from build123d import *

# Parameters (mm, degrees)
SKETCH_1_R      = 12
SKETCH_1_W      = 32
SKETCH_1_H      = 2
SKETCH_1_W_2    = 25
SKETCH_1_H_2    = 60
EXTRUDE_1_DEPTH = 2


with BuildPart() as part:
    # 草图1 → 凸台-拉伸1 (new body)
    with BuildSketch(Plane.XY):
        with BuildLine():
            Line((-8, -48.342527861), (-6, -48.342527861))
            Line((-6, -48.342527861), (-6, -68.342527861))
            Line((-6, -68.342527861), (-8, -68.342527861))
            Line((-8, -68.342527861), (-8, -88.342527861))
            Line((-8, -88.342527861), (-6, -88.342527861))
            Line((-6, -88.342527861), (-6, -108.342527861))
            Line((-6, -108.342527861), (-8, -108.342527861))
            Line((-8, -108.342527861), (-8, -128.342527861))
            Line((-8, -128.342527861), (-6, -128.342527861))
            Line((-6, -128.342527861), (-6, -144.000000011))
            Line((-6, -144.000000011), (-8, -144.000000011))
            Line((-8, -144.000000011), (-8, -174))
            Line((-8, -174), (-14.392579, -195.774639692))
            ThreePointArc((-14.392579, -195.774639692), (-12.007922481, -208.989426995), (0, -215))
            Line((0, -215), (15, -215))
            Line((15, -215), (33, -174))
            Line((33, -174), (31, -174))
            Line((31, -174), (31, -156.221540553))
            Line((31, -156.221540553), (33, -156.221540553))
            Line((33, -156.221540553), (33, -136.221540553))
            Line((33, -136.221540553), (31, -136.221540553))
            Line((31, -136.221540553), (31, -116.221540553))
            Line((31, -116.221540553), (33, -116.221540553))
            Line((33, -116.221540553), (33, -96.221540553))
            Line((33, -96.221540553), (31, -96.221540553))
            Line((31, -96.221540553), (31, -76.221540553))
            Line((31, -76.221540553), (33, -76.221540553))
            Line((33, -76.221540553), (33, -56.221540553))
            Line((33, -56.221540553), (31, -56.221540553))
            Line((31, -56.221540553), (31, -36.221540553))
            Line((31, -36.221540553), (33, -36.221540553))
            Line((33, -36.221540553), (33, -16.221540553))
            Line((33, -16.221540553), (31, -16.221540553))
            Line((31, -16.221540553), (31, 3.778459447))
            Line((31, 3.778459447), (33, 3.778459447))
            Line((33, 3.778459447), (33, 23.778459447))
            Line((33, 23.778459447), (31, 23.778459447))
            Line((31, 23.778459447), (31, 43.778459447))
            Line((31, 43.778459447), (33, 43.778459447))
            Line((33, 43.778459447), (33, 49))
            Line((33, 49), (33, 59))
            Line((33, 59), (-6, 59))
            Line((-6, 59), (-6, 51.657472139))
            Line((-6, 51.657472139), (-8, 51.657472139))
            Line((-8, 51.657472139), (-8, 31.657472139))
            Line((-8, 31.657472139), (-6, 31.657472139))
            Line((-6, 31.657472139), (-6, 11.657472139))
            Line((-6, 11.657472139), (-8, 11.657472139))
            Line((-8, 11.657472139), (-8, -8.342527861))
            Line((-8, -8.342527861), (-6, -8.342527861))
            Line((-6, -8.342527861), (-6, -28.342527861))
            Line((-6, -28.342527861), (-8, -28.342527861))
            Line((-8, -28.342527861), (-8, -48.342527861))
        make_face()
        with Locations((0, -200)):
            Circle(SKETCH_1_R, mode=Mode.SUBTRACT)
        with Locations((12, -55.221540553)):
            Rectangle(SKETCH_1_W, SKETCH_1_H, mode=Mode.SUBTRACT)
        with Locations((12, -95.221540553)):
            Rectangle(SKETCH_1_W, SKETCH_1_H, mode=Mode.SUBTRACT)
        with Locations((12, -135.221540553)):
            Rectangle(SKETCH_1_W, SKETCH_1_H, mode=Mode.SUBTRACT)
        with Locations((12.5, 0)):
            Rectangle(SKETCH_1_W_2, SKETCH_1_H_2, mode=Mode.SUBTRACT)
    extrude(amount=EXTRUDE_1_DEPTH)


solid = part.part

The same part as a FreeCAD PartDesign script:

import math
import FreeCAD as App
import Part
import Sketcher


def add_polygon(sketch, points):
    """Adds a closed chain of lines whose ends are joined by coincident constraints."""
    first, n = sketch.GeometryCount, len(points)
    for a, b in zip(points, points[1:] + points[:1]):
        sketch.addGeometry(Part.LineSegment(App.Vector(*a, 0), App.Vector(*b, 0)), False)
    for i in range(n):
        sketch.addConstraint(Sketcher.Constraint("Coincident", first + i, 2, first + (i + 1) % n, 1))

doc = App.newDocument("Part")
body = doc.addObject("PartDesign::Body", "Body")

sketch1 = body.newObject("Sketcher::SketchObject", "Sketch")
sketch1.AttachmentSupport = (doc.getObject("XY_Plane"), [""])
sketch1.MapMode = "FlatFace"
sketch1.addGeometry(Part.LineSegment(App.Vector(-8, -48.3, 0), App.Vector(-6, -48.3, 0)), False)
sketch1.addGeometry(Part.LineSegment(App.Vector(-6, -48.3, 0), App.Vector(-6, -68.3, 0)), False)
sketch1.addGeometry(Part.LineSegment(App.Vector(-6, -68.3, 0), App.Vector(-8, -68.3, 0)), False)
sketch1.addGeometry(Part.LineSegment(App.Vector(-8, -68.3, 0), App.Vector(-8, -88.3, 0)), False)
sketch1.addGeometry(Part.LineSegment(App.Vector(-8, -88.3, 0), App.Vector(-6, -88.3, 0)), False)
sketch1.addGeometry(Part.LineSegment(App.Vector(-6, -88.3, 0), App.Vector(-6, -108.3, 0)), False)
sketch1.addGeometry(Part.LineSegment(App.Vector(-6, -108.3, 0), App.Vector(-8, -108.3, 0)), False)
sketch1.addGeometry(Part.LineSegment(App.Vector(-8, -108.3, 0), App.Vector(-8, -128.3, 0)), False)
sketch1.addGeometry(Part.LineSegment(App.Vector(-8, -128.3, 0), App.Vector(-6, -128.3, 0)), False)
sketch1.addGeometry(Part.LineSegment(App.Vector(-6, -128.3, 0), App.Vector(-6, -144, 0)), False)
sketch1.addGeometry(Part.LineSegment(App.Vector(-6, -144, 0), App.Vector(-8, -144, 0)), False)
sketch1.addGeometry(Part.LineSegment(App.Vector(-8, -144, 0), App.Vector(-8, -174, 0)), False)
sketch1.addGeometry(Part.LineSegment(App.Vector(-8, -174, 0), App.Vector(-14.4, -195.8, 0)), False)
sketch1.addGeometry(Part.ArcOfCircle(Part.Circle(App.Vector(0, -200, 0), App.Vector(0, 0, 1), 15), math.radians(164), math.radians(270)), False)
sketch1.addGeometry(Part.LineSegment(App.Vector(0, -215, 0), App.Vector(15, -215, 0)), False)
sketch1.addGeometry(Part.LineSegment(App.Vector(15, -215, 0), App.Vector(33, -174, 0)), False)
sketch1.addGeometry(Part.LineSegment(App.Vector(33, -174, 0), App.Vector(31, -174, 0)), False)
sketch1.addGeometry(Part.LineSegment(App.Vector(31, -174, 0), App.Vector(31, -156.2, 0)), False)
sketch1.addGeometry(Part.LineSegment(App.Vector(31, -156.2, 0), App.Vector(33, -156.2, 0)), False)
sketch1.addGeometry(Part.LineSegment(App.Vector(33, -156.2, 0), App.Vector(33, -136.2, 0)), False)
sketch1.addGeometry(Part.LineSegment(App.Vector(33, -136.2, 0), App.Vector(31, -136.2, 0)), False)
sketch1.addGeometry(Part.LineSegment(App.Vector(31, -136.2, 0), App.Vector(31, -116.2, 0)), False)
sketch1.addGeometry(Part.LineSegment(App.Vector(31, -116.2, 0), App.Vector(33, -116.2, 0)), False)
sketch1.addGeometry(Part.LineSegment(App.Vector(33, -116.2, 0), App.Vector(33, -96.2, 0)), False)
sketch1.addGeometry(Part.LineSegment(App.Vector(33, -96.2, 0), App.Vector(31, -96.2, 0)), False)
sketch1.addGeometry(Part.LineSegment(App.Vector(31, -96.2, 0), App.Vector(31, -76.2, 0)), False)
sketch1.addGeometry(Part.LineSegment(App.Vector(31, -76.2, 0), App.Vector(33, -76.2, 0)), False)
sketch1.addGeometry(Part.LineSegment(App.Vector(33, -76.2, 0), App.Vector(33, -56.2, 0)), False)
sketch1.addGeometry(Part.LineSegment(App.Vector(33, -56.2, 0), App.Vector(31, -56.2, 0)), False)
sketch1.addGeometry(Part.LineSegment(App.Vector(31, -56.2, 0), App.Vector(31, -36.2, 0)), False)
sketch1.addGeometry(Part.LineSegment(App.Vector(31, -36.2, 0), App.Vector(33, -36.2, 0)), False)
sketch1.addGeometry(Part.LineSegment(App.Vector(33, -36.2, 0), App.Vector(33, -16.2, 0)), False)
sketch1.addGeometry(Part.LineSegment(App.Vector(33, -16.2, 0), App.Vector(31, -16.2, 0)), False)
sketch1.addGeometry(Part.LineSegment(App.Vector(31, -16.2, 0), App.Vector(31, 3.8, 0)), False)
sketch1.addGeometry(Part.LineSegment(App.Vector(31, 3.8, 0), App.Vector(33, 3.8, 0)), False)
sketch1.addGeometry(Part.LineSegment(App.Vector(33, 3.8, 0), App.Vector(33, 23.8, 0)), False)
sketch1.addGeometry(Part.LineSegment(App.Vector(33, 23.8, 0), App.Vector(31, 23.8, 0)), False)
sketch1.addGeometry(Part.LineSegment(App.Vector(31, 23.8, 0), App.Vector(31, 43.8, 0)), False)
sketch1.addGeometry(Part.LineSegment(App.Vector(31, 43.8, 0), App.Vector(33, 43.8, 0)), False)
sketch1.addGeometry(Part.LineSegment(App.Vector(33, 43.8, 0), App.Vector(33, 59, 0)), False)
sketch1.addGeometry(Part.LineSegment(App.Vector(33, 59, 0), App.Vector(-6, 59, 0)), False)
sketch1.addGeometry(Part.LineSegment(App.Vector(-6, 59, 0), App.Vector(-6, 51.7, 0)), False)
sketch1.addGeometry(Part.LineSegment(App.Vector(-6, 51.7, 0), App.Vector(-8, 51.7, 0)), False)
sketch1.addGeometry(Part.LineSegment(App.Vector(-8, 51.7, 0), App.Vector(-8, 31.7, 0)), False)
sketch1.addGeometry(Part.LineSegment(App.Vector(-8, 31.7, 0), App.Vector(-6, 31.7, 0)), False)
sketch1.addGeometry(Part.LineSegment(App.Vector(-6, 31.7, 0), App.Vector(-6, 11.7, 0)), False)
sketch1.addGeometry(Part.LineSegment(App.Vector(-6, 11.7, 0), App.Vector(-8, 11.7, 0)), False)
sketch1.addGeometry(Part.LineSegment(App.Vector(-8, 11.7, 0), App.Vector(-8, -8.3, 0)), False)
sketch1.addGeometry(Part.LineSegment(App.Vector(-8, -8.3, 0), App.Vector(-6, -8.3, 0)), False)
sketch1.addGeometry(Part.LineSegment(App.Vector(-6, -8.3, 0), App.Vector(-6, -28.3, 0)), False)
sketch1.addGeometry(Part.LineSegment(App.Vector(-6, -28.3, 0), App.Vector(-8, -28.3, 0)), False)
sketch1.addGeometry(Part.LineSegment(App.Vector(-8, -28.3, 0), App.Vector(-8, -48.3, 0)), False)
sketch1.addGeometry(Part.Circle(App.Vector(0, -200, 0), App.Vector(0, 0, 1), 12), False)
add_polygon(sketch1, [(28, -136.2), (-4, -136.2), (-4, -134.2), (28, -134.2)])
add_polygon(sketch1, [(28, -96.2), (-4, -96.2), (-4, -94.2), (28, -94.2)])
add_polygon(sketch1, [(28, -56.2), (-4, -56.2), (-4, -54.2), (28, -54.2)])
add_polygon(sketch1, [(25, -30), (0, -30), (0, 30), (25, 30)])
sketch1.addConstraint(Sketcher.Constraint("Coincident", 0, 2, 1, 1))
sketch1.addConstraint(Sketcher.Constraint("Coincident", 1, 2, 2, 1))
sketch1.addConstraint(Sketcher.Constraint("Coincident", 2, 2, 3, 1))
sketch1.addConstraint(Sketcher.Constraint("Coincident", 3, 2, 4, 1))
sketch1.addConstraint(Sketcher.Constraint("Coincident", 4, 2, 5, 1))
sketch1.addConstraint(Sketcher.Constraint("Coincident", 5, 2, 6, 1))
sketch1.addConstraint(Sketcher.Constraint("Coincident", 6, 2, 7, 1))
sketch1.addConstraint(Sketcher.Constraint("Coincident", 7, 2, 8, 1))
sketch1.addConstraint(Sketcher.Constraint("Coincident", 8, 2, 9, 1))
sketch1.addConstraint(Sketcher.Constraint("Coincident", 9, 2, 10, 1))
sketch1.addConstraint(Sketcher.Constraint("Coincident", 10, 2, 11, 1))
sketch1.addConstraint(Sketcher.Constraint("Coincident", 11, 2, 12, 1))
sketch1.addConstraint(Sketcher.Constraint("Tangent", 12, 2, 13, 1))
sketch1.addConstraint(Sketcher.Constraint("Tangent", 13, 2, 14, 1))
sketch1.addConstraint(Sketcher.Constraint("Coincident", 14, 2, 15, 1))
sketch1.addConstraint(Sketcher.Constraint("Coincident", 15, 2, 16, 1))
sketch1.addConstraint(Sketcher.Constraint("Coincident", 16, 2, 17, 1))
sketch1.addConstraint(Sketcher.Constraint("Coincident", 17, 2, 18, 1))
sketch1.addConstraint(Sketcher.Constraint("Coincident", 18, 2, 19, 1))
sketch1.addConstraint(Sketcher.Constraint("Coincident", 19, 2, 20, 1))
sketch1.addConstraint(Sketcher.Constraint("Coincident", 20, 2, 21, 1))
sketch1.addConstraint(Sketcher.Constraint("Coincident", 21, 2, 22, 1))
sketch1.addConstraint(Sketcher.Constraint("Coincident", 22, 2, 23, 1))
sketch1.addConstraint(Sketcher.Constraint("Coincident", 23, 2, 24, 1))
sketch1.addConstraint(Sketcher.Constraint("Coincident", 24, 2, 25, 1))
sketch1.addConstraint(Sketcher.Constraint("Coincident", 25, 2, 26, 1))
sketch1.addConstraint(Sketcher.Constraint("Coincident", 26, 2, 27, 1))
sketch1.addConstraint(Sketcher.Constraint("Coincident", 27, 2, 28, 1))
sketch1.addConstraint(Sketcher.Constraint("Coincident", 28, 2, 29, 1))
sketch1.addConstraint(Sketcher.Constraint("Coincident", 29, 2, 30, 1))
sketch1.addConstraint(Sketcher.Constraint("Coincident", 30, 2, 31, 1))
sketch1.addConstraint(Sketcher.Constraint("Coincident", 31, 2, 32, 1))
sketch1.addConstraint(Sketcher.Constraint("Coincident", 32, 2, 33, 1))
sketch1.addConstraint(Sketcher.Constraint("Coincident", 33, 2, 34, 1))
sketch1.addConstraint(Sketcher.Constraint("Coincident", 34, 2, 35, 1))
sketch1.addConstraint(Sketcher.Constraint("Coincident", 35, 2, 36, 1))
sketch1.addConstraint(Sketcher.Constraint("Coincident", 36, 2, 37, 1))
sketch1.addConstraint(Sketcher.Constraint("Coincident", 37, 2, 38, 1))
sketch1.addConstraint(Sketcher.Constraint("Coincident", 38, 2, 39, 1))
sketch1.addConstraint(Sketcher.Constraint("Coincident", 39, 2, 40, 1))
sketch1.addConstraint(Sketcher.Constraint("Coincident", 40, 2, 41, 1))
sketch1.addConstraint(Sketcher.Constraint("Coincident", 41, 2, 42, 1))
sketch1.addConstraint(Sketcher.Constraint("Coincident", 42, 2, 43, 1))
sketch1.addConstraint(Sketcher.Constraint("Coincident", 43, 2, 44, 1))
sketch1.addConstraint(Sketcher.Constraint("Coincident", 44, 2, 45, 1))
sketch1.addConstraint(Sketcher.Constraint("Coincident", 45, 2, 46, 1))
sketch1.addConstraint(Sketcher.Constraint("Coincident", 46, 2, 47, 1))
sketch1.addConstraint(Sketcher.Constraint("Coincident", 47, 2, 48, 1))
sketch1.addConstraint(Sketcher.Constraint("Coincident", 48, 2, 49, 1))
sketch1.addConstraint(Sketcher.Constraint("Coincident", 49, 2, 50, 1))
sketch1.addConstraint(Sketcher.Constraint("Coincident", 50, 2, 51, 1))
sketch1.addConstraint(Sketcher.Constraint("Coincident", 51, 2, 0, 1))
sketch1.addConstraint(Sketcher.Constraint("Horizontal", 0))
sketch1.addConstraint(Sketcher.Constraint("Vertical", 1))
sketch1.addConstraint(Sketcher.Constraint("Horizontal", 2))
sketch1.addConstraint(Sketcher.Constraint("Vertical", 3))
sketch1.addConstraint(Sketcher.Constraint("Horizontal", 4))
sketch1.addConstraint(Sketcher.Constraint("Vertical", 5))
sketch1.addConstraint(Sketcher.Constraint("Horizontal", 6))
sketch1.addConstraint(Sketcher.Constraint("Vertical", 7))
sketch1.addConstraint(Sketcher.Constraint("Horizontal", 8))
sketch1.addConstraint(Sketcher.Constraint("Vertical", 9))
sketch1.addConstraint(Sketcher.Constraint("Horizontal", 10))
sketch1.addConstraint(Sketcher.Constraint("Vertical", 11))
sketch1.addConstraint(Sketcher.Constraint("Horizontal", 14))
sketch1.addConstraint(Sketcher.Constraint("Horizontal", 16))
sketch1.addConstraint(Sketcher.Constraint("Vertical", 17))
sketch1.addConstraint(Sketcher.Constraint("Horizontal", 18))
sketch1.addConstraint(Sketcher.Constraint("Vertical", 19))
sketch1.addConstraint(Sketcher.Constraint("Horizontal", 20))
sketch1.addConstraint(Sketcher.Constraint("Vertical", 21))
sketch1.addConstraint(Sketcher.Constraint("Horizontal", 22))
sketch1.addConstraint(Sketcher.Constraint("Vertical", 23))
sketch1.addConstraint(Sketcher.Constraint("Horizontal", 24))
sketch1.addConstraint(Sketcher.Constraint("Vertical", 25))
sketch1.addConstraint(Sketcher.Constraint("Horizontal", 26))
sketch1.addConstraint(Sketcher.Constraint("Vertical", 27))
sketch1.addConstraint(Sketcher.Constraint("Horizontal", 28))
sketch1.addConstraint(Sketcher.Constraint("Vertical", 29))
sketch1.addConstraint(Sketcher.Constraint("Horizontal", 30))
sketch1.addConstraint(Sketcher.Constraint("Vertical", 31))
sketch1.addConstraint(Sketcher.Constraint("Horizontal", 32))
sketch1.addConstraint(Sketcher.Constraint("Vertical", 33))
sketch1.addConstraint(Sketcher.Constraint("Horizontal", 34))
sketch1.addConstraint(Sketcher.Constraint("Vertical", 35))
sketch1.addConstraint(Sketcher.Constraint("Horizontal", 36))
sketch1.addConstraint(Sketcher.Constraint("Vertical", 37))
sketch1.addConstraint(Sketcher.Constraint("Horizontal", 38))
sketch1.addConstraint(Sketcher.Constraint("Vertical", 39))
sketch1.addConstraint(Sketcher.Constraint("Horizontal", 40))
sketch1.addConstraint(Sketcher.Constraint("Vertical", 41))
sketch1.addConstraint(Sketcher.Constraint("Horizontal", 42))
sketch1.addConstraint(Sketcher.Constraint("Vertical", 43))
sketch1.addConstraint(Sketcher.Constraint("Horizontal", 44))
sketch1.addConstraint(Sketcher.Constraint("Vertical", 45))
sketch1.addConstraint(Sketcher.Constraint("Horizontal", 46))
sketch1.addConstraint(Sketcher.Constraint("Vertical", 47))
sketch1.addConstraint(Sketcher.Constraint("Horizontal", 48))
sketch1.addConstraint(Sketcher.Constraint("Vertical", 49))
sketch1.addConstraint(Sketcher.Constraint("Horizontal", 50))
sketch1.addConstraint(Sketcher.Constraint("Vertical", 51))
sketch1.addConstraint(Sketcher.Constraint("Horizontal", 53))
sketch1.addConstraint(Sketcher.Constraint("Vertical", 54))
sketch1.addConstraint(Sketcher.Constraint("Horizontal", 55))
sketch1.addConstraint(Sketcher.Constraint("Vertical", 56))
sketch1.addConstraint(Sketcher.Constraint("Horizontal", 57))
sketch1.addConstraint(Sketcher.Constraint("Vertical", 58))
sketch1.addConstraint(Sketcher.Constraint("Horizontal", 59))
sketch1.addConstraint(Sketcher.Constraint("Vertical", 60))
sketch1.addConstraint(Sketcher.Constraint("Horizontal", 61))
sketch1.addConstraint(Sketcher.Constraint("Vertical", 62))
sketch1.addConstraint(Sketcher.Constraint("Horizontal", 63))
sketch1.addConstraint(Sketcher.Constraint("Vertical", 64))
sketch1.addConstraint(Sketcher.Constraint("Horizontal", 65))
sketch1.addConstraint(Sketcher.Constraint("Vertical", 66))
sketch1.addConstraint(Sketcher.Constraint("Horizontal", 67))
sketch1.addConstraint(Sketcher.Constraint("Vertical", 68))
sketch1.addConstraint(Sketcher.Constraint("Coincident", 52, 3, 13, 3))
sketch1.addConstraint(Sketcher.Constraint("Symmetric", 65, 2, 66, 2, -1, 1))
sketch1.addConstraint(Sketcher.Constraint("PointOnObject", 13, 3, -2))
sketch1.addConstraint(Sketcher.Constraint("Horizontal", 11, 2, 15, 2))
sketch1.addConstraint(Sketcher.Constraint("Horizontal", 20, 2, 53, 2))
sketch1.addConstraint(Sketcher.Constraint("Horizontal", 24, 2, 57, 2))
sketch1.addConstraint(Sketcher.Constraint("Horizontal", 28, 2, 61, 2))
sketch1.addConstraint(Sketcher.Constraint("Vertical", 1, 2, 4, 2))
sketch1.addConstraint(Sketcher.Constraint("Vertical", 3, 2, 6, 2))
sketch1.addConstraint(Sketcher.Constraint("Vertical", 5, 2, 8, 2))
sketch1.addConstraint(Sketcher.Constraint("Vertical", 7, 2, 10, 2))
sketch1.addConstraint(Sketcher.Constraint("Vertical", 15, 2, 18, 2))
sketch1.addConstraint(Sketcher.Constraint("Vertical", 17, 2, 20, 2))
sketch1.addConstraint(Sketcher.Constraint("Vertical", 19, 2, 22, 2))
sketch1.addConstraint(Sketcher.Constraint("Vertical", 21, 2, 24, 2))
sketch1.addConstraint(Sketcher.Constraint("Vertical", 23, 2, 26, 2))
sketch1.addConstraint(Sketcher.Constraint("Vertical", 25, 2, 28, 2))
sketch1.addConstraint(Sketcher.Constraint("Vertical", 27, 2, 30, 2))
sketch1.addConstraint(Sketcher.Constraint("Vertical", 29, 2, 32, 2))
sketch1.addConstraint(Sketcher.Constraint("Vertical", 31, 2, 34, 2))
sketch1.addConstraint(Sketcher.Constraint("Vertical", 33, 2, 36, 2))
sketch1.addConstraint(Sketcher.Constraint("Vertical", 35, 2, 38, 2))
sketch1.addConstraint(Sketcher.Constraint("Vertical", 9, 2, 40, 2))
sketch1.addConstraint(Sketcher.Constraint("Vertical", 11, 2, 42, 2))
sketch1.addConstraint(Sketcher.Constraint("Vertical", 41, 2, 44, 2))
sketch1.addConstraint(Sketcher.Constraint("Vertical", 43, 2, 46, 2))
sketch1.addConstraint(Sketcher.Constraint("Vertical", 45, 2, 48, 2))
sketch1.addConstraint(Sketcher.Constraint("Vertical", 47, 2, 50, 2))
sketch1.addConstraint(Sketcher.Constraint("Vertical", 54, 2, 57, 2))
sketch1.addConstraint(Sketcher.Constraint("Vertical", 56, 2, 59, 2))
sketch1.addConstraint(Sketcher.Constraint("Vertical", 58, 2, 61, 2))
sketch1.addConstraint(Sketcher.Constraint("Vertical", 60, 2, 63, 2))
sketch1.addConstraint(Sketcher.Constraint("Equal", 10, 16))
sketch1.addConstraint(Sketcher.Constraint("Equal", 1, 3))
sketch1.addConstraint(Sketcher.Constraint("Equal", 3, 5))
sketch1.addConstraint(Sketcher.Constraint("Equal", 5, 7))
sketch1.addConstraint(Sketcher.Constraint("Equal", 7, 19))
sketch1.addConstraint(Sketcher.Constraint("Equal", 19, 21))
sketch1.addConstraint(Sketcher.Constraint("Equal", 21, 23))
sketch1.addConstraint(Sketcher.Constraint("Equal", 23, 25))
sketch1.addConstraint(Sketcher.Constraint("Equal", 25, 27))
sketch1.addConstraint(Sketcher.Constraint("Equal", 27, 29))
sketch1.addConstraint(Sketcher.Constraint("Equal", 29, 31))
sketch1.addConstraint(Sketcher.Constraint("Equal", 31, 33))
sketch1.addConstraint(Sketcher.Constraint("Equal", 33, 35))
sketch1.addConstraint(Sketcher.Constraint("Equal", 35, 37))
sketch1.addConstraint(Sketcher.Constraint("Equal", 37, 43))
sketch1.addConstraint(Sketcher.Constraint("Equal", 43, 45))
sketch1.addConstraint(Sketcher.Constraint("Equal", 45, 47))
sketch1.addConstraint(Sketcher.Constraint("Equal", 47, 49))
sketch1.addConstraint(Sketcher.Constraint("Equal", 49, 51))
sketch1.addConstraint(Sketcher.Constraint("Equal", 50, 54))
sketch1.addConstraint(Sketcher.Constraint("Equal", 56, 58))
sketch1.addConstraint(Sketcher.Constraint("Equal", 60, 62))
sketch1.addConstraint(Sketcher.Constraint("Diameter", 52, 24.0))
sketch1.addConstraint(Sketcher.Constraint("Radius", 13, 15.0))
sketch1.addConstraint(Sketcher.Constraint("DistanceX", 0, 1, 0, 2, 2.0))
sketch1.addConstraint(Sketcher.Constraint("DistanceX", 14, 1, 14, 2, 15.0))
sketch1.addConstraint(Sketcher.Constraint("DistanceX", 40, 2, 40, 1, 39.0))
sketch1.addConstraint(Sketcher.Constraint("DistanceX", 53, 2, 53, 1, 32.0))
sketch1.addConstraint(Sketcher.Constraint("DistanceX", 65, 2, 65, 1, 25.0))
sketch1.addConstraint(Sketcher.Constraint("DistanceY", 1, 2, 1, 1, 20.0))
sketch1.addConstraint(Sketcher.Constraint("DistanceY", 11, 2, 11, 1, 30.0))
sketch1.addConstraint(Sketcher.Constraint("DistanceY", 66, 1, 66, 2, 60.0))
sketch1.addConstraint(Sketcher.Constraint("DistanceY", 13, 3, -1, 1, 200.0))
sketch1.addConstraint(Sketcher.Constraint("DistanceX", 0, 2, -1, 1, 6.0))
sketch1.addConstraint(Sketcher.Constraint("DistanceY", 9, 2, -1, 1, 144.0))
sketch1.addConstraint(Sketcher.Constraint("DistanceY", -1, 1, 39, 2, 59.0))
sketch1.addConstraint(Sketcher.Constraint("DistanceX", 53, 2, -1, 1, 4.0))
sketch1.addConstraint(Sketcher.Constraint("DistanceY", 17, 1, 17, 2, 17.778459))
sketch1.addConstraint(Sketcher.Constraint("DistanceY", 9, 2, 9, 1, 15.657472))
pad1 = body.newObject("PartDesign::Pad", "Pad")
pad1.Profile = sketch1
pad1.Length = 2

doc.recompute()
